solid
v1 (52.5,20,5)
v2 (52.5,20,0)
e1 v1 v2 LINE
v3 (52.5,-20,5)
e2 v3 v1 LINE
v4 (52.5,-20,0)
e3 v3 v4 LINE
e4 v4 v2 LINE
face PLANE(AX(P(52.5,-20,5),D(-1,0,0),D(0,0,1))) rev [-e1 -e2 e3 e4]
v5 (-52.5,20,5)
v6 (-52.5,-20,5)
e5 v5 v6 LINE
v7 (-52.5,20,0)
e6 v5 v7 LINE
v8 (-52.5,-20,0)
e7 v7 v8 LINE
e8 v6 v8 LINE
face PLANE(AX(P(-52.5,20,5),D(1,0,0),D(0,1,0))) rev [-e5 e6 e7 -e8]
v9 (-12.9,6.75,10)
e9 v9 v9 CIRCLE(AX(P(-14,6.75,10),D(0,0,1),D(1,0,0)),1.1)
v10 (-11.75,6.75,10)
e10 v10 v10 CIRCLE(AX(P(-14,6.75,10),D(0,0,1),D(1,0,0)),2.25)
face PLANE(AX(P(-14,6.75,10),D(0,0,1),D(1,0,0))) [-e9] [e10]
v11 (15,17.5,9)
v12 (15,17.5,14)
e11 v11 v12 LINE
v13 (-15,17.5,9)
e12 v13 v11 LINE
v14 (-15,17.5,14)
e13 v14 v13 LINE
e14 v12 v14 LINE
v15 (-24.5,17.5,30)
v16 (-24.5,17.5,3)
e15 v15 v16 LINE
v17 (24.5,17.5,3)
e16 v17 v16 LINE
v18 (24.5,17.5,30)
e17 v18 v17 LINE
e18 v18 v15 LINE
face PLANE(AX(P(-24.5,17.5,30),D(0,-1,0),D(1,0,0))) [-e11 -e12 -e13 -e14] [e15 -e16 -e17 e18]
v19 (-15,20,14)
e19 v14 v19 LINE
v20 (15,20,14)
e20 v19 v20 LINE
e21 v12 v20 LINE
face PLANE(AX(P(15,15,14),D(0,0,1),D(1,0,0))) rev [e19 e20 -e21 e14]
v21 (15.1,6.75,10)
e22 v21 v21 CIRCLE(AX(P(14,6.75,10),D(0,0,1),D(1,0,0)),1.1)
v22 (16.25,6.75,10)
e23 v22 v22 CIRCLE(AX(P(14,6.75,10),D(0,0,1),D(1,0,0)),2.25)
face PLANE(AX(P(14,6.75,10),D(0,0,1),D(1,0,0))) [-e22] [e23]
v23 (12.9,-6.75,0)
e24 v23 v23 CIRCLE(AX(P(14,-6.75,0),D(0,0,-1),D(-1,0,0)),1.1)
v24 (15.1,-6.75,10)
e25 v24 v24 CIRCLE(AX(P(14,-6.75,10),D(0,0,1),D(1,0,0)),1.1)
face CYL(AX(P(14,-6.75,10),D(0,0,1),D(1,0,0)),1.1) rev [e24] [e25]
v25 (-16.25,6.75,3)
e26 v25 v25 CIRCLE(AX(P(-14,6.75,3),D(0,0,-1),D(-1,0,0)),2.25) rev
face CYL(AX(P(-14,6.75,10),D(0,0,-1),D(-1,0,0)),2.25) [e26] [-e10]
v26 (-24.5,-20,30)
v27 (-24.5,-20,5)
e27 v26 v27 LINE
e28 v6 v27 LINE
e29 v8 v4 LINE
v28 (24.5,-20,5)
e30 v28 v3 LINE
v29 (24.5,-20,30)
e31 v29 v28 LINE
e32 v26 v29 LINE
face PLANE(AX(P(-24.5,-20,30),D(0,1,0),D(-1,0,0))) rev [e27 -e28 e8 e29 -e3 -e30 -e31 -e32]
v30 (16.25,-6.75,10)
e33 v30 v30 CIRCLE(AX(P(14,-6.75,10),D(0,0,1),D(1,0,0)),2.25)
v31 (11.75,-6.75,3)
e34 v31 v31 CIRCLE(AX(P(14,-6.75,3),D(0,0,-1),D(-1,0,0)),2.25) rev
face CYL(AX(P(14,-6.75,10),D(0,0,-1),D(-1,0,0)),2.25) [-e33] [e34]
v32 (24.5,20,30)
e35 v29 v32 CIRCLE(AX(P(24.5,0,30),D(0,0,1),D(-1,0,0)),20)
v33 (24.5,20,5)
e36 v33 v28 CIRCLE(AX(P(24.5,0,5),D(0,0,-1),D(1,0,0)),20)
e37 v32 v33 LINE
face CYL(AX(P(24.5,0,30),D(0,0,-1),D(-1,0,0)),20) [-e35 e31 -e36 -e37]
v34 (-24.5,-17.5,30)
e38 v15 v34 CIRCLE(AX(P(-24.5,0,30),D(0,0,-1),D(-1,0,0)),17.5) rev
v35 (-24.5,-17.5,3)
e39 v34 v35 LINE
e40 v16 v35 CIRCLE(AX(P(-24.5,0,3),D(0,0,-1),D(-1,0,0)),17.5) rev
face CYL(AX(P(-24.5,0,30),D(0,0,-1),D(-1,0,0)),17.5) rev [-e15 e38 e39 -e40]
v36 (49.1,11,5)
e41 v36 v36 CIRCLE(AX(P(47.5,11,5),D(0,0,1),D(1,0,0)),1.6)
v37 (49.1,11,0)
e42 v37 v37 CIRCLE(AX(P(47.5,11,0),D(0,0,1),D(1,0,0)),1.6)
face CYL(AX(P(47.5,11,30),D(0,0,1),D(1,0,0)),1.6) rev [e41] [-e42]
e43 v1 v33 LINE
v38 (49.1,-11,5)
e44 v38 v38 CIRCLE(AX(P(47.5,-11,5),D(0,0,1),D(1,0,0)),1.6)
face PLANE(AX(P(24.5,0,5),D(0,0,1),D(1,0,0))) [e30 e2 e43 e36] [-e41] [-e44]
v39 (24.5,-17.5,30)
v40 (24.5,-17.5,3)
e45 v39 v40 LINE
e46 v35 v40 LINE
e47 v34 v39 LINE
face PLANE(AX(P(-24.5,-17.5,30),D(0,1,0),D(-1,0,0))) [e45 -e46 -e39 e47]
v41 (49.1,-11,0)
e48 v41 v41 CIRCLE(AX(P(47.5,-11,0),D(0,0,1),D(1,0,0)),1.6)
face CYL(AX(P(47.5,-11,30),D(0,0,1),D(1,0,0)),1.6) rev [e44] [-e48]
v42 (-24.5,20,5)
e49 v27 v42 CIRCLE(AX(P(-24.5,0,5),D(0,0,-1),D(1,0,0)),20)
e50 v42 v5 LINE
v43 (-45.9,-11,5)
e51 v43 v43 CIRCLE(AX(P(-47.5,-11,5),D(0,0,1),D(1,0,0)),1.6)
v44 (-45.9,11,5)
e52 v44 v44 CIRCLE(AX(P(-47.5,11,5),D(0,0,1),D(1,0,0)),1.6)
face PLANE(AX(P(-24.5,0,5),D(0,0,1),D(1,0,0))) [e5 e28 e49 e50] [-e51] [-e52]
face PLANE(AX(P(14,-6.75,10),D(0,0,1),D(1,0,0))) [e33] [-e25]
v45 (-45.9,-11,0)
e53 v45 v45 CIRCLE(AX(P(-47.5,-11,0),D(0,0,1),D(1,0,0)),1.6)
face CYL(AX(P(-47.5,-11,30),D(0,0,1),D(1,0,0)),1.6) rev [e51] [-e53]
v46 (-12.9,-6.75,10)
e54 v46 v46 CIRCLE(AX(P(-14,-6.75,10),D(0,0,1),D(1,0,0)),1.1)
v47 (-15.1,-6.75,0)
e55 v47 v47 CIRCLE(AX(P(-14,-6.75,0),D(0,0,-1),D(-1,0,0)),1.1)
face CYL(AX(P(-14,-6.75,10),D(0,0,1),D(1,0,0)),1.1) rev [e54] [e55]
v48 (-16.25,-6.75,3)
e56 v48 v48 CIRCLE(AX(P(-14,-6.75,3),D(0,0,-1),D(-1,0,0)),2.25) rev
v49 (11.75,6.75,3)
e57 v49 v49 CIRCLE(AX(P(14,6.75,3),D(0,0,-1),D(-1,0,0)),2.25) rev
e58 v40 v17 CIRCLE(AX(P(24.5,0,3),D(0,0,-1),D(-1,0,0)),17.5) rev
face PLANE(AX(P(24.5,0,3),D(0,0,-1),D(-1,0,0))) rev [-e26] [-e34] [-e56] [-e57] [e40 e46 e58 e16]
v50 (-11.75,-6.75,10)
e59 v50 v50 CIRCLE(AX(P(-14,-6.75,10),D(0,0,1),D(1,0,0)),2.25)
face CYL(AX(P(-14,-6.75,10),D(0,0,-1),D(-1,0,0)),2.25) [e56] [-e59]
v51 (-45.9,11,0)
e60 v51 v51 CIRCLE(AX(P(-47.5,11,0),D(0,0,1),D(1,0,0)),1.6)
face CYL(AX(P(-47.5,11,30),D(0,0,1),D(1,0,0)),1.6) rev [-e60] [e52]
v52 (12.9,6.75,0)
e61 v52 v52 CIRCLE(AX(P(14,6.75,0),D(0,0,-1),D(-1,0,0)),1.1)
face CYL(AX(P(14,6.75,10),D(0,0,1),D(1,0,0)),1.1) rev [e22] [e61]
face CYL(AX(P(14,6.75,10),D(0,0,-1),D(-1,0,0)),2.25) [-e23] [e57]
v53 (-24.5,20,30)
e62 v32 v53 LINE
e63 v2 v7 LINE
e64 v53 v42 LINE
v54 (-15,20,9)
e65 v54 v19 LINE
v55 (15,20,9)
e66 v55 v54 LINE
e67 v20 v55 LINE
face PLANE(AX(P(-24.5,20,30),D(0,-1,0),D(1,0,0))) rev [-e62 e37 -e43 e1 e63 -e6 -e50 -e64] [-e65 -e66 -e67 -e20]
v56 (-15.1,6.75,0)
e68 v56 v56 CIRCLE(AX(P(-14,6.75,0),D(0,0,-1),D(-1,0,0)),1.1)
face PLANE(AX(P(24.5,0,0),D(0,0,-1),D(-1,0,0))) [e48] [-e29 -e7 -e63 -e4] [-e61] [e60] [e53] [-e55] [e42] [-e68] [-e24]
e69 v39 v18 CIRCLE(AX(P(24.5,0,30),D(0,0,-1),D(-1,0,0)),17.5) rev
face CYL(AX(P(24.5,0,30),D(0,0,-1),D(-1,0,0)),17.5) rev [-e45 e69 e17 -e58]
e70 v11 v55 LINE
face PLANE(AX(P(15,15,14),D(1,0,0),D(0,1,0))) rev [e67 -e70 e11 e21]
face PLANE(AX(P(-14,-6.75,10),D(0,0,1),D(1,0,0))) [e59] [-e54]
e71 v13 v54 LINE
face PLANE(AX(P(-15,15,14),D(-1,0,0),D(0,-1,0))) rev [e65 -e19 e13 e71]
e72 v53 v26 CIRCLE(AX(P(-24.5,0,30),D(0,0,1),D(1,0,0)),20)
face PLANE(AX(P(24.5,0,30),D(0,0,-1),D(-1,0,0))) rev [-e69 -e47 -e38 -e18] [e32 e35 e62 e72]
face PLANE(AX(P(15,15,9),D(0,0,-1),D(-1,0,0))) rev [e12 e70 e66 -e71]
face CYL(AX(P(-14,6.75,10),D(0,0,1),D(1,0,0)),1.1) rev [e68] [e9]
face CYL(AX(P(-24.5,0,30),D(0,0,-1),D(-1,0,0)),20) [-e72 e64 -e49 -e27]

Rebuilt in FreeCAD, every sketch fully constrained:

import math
import FreeCAD as App
import Part
import Sketcher

V = App.Vector


def faces_at(feature, points):
    """Names of the faces that lie closest to the given points."""
    faces = feature.Shape.Faces
    near = lambda p: min(range(len(faces)), key=lambda i: faces[i].distToShape(Part.Vertex(*p))[0])
    return sorted({f"Face{near(p) + 1}" for p in points})

doc = App.newDocument("Part")
body = doc.addObject("PartDesign::Body", "Body")

# Sketch on XY plane
sketch1 = doc.addObject("Sketcher::SketchObject", "Sketch")
body.addObject(sketch1)
sketch1.AttachmentSupport = (doc.XY_Plane, [""])
sketch1.MapMode = "FlatFace"
sketch1.addGeometry(Part.LineSegment(V(24, 20, 0), V(-24, 20, 0)), False)
sketch1.addGeometry(Part.ArcOfCircle(Part.Circle(V(-24, 0, 0), V(0, 0, 1), 20), math.radians(90), math.radians(270)), False)
sketch1.addGeometry(Part.LineSegment(V(-24, -20, 0), V(24, -20, 0)), False)
sketch1.addGeometry(Part.ArcOfCircle(Part.Circle(V(24, 0, 0), V(0, 0, 1), 20), math.radians(-90), math.radians(90)), False)
sketch1.addConstraint(Sketcher.Constraint("Tangent", 0, 2, 1, 1))
sketch1.addConstraint(Sketcher.Constraint("Tangent", 1, 2, 2, 1))
sketch1.addConstraint(Sketcher.Constraint("Tangent", 2, 2, 3, 1))
sketch1.addConstraint(Sketcher.Constraint("Tangent", 3, 2, 0, 1))
sketch1.addConstraint(Sketcher.Constraint("Horizontal", 0))
sketch1.addConstraint(Sketcher.Constraint("Horizontal", 2))
sketch1.addConstraint(Sketcher.Constraint("Symmetric", 1, 3, 3, 3, -1, 1))
sketch1.addConstraint(Sketcher.Constraint("Radius", 1, 20.0))
sketch1.addConstraint(Sketcher.Constraint("DistanceX", 0, 2, 0, 1, 49.0))
pad1 = doc.addObject("PartDesign::Pad", "Pad")
body.addObject(pad1)
pad1.Profile = sketch1
pad1.Length = 30
doc.recompute()

thickness = doc.addObject("PartDesign::Thickness", "Thickness")
body.addObject(thickness)
thickness.Base = (pad1, faces_at(pad1, [(0, 0, 30)]))
thickness.Value = 2.5
thickness.Reversed = True
thickness.Join = "Intersection"

# Sketch on XY plane
sketch2 = doc.addObject("Sketcher::SketchObject", "Sketch001")
body.addObject(sketch2)
sketch2.AttachmentSupport = (doc.XY_Plane, [""])
sketch2.MapMode = "FlatFace"
sketch2.AttachmentOffset = App.Placement(V(0, 0, 2.5), App.Rotation())
sketch2.addGeometry(Part.LineSegment(V(-24, 18, 0), V(24, 18, 0)), False)
sketch2.addGeometry(Part.ArcOfCircle(Part.Circle(V(24, 0, 0), V(0, 0, 1), 18), math.radians(-90), math.radians(90)), False)
sketch2.addGeometry(Part.LineSegment(V(24, -18, 0), V(-24, -18, 0)), False)
sketch2.addGeometry(Part.ArcOfCircle(Part.Circle(V(-24, 0, 0), V(0, 0, 1), 18), math.radians(90), math.radians(270)), False)
sketch2.addConstraint(Sketcher.Constraint("Tangent", 0, 2, 1, 2))
sketch2.addConstraint(Sketcher.Constraint("Tangent", 1, 1, 2, 1))
sketch2.addConstraint(Sketcher.Constraint("Tangent", 2, 2, 3, 2))
sketch2.addConstraint(Sketcher.Constraint("Tangent", 3, 1, 0, 1))
sketch2.addConstraint(Sketcher.Constraint("Horizontal", 0))
sketch2.addConstraint(Sketcher.Constraint("Horizontal", 2))
sketch2.addConstraint(Sketcher.Constraint("Symmetric", 1, 3, 3, 3, -1, 1))
sketch2.addConstraint(Sketcher.Constraint("Radius", 1, 17.5))
sketch2.addConstraint(Sketcher.Constraint("DistanceX", 0, 1, 0, 2, 49.0))
pad2 = doc.addObject("PartDesign::Pad", "Pad001")
body.addObject(pad2)
pad2.Profile = sketch2
pad2.Length = 0.5

# Sketch on XY plane
sketch3 = doc.addObject("Sketcher::SketchObject", "Sketch002")
body.addObject(sketch3)
sketch3.AttachmentSupport = (doc.XY_Plane, [""])
sketch3.MapMode = "FlatFace"
sketch3.addGeometry(Part.LineSegment(V(-24, 20, 0), V(-52, 20, 0)), False)
sketch3.addGeometry(Part.LineSegment(V(-52, 20, 0), V(-52, -20, 0)), False)
sketch3.addGeometry(Part.LineSegment(V(-52, -20, 0), V(-24, -20, 0)), False)
sketch3.addGeometry(Part.ArcOfCircle(Part.Circle(V(-24, 0, 0), V(0, 0, 1), 20), math.radians(90), math.radians(270)), False)
sketch3.addGeometry(Part.LineSegment(V(24, -20, 0), V(52, -20, 0)), False)
sketch3.addGeometry(Part.LineSegment(V(52, -20, 0), V(52, 20, 0)), False)
sketch3.addGeometry(Part.LineSegment(V(52, 20, 0), V(24, 20, 0)), False)
sketch3.addGeometry(Part.ArcOfCircle(Part.Circle(V(24, 0, 0), V(0, 0, 1), 20), math.radians(-90), math.radians(90)), False)
sketch3.addConstraint(Sketcher.Constraint("Coincident", 0, 2, 1, 1))
sketch3.addConstraint(Sketcher.Constraint("Coincident", 1, 2, 2, 1))
sketch3.addConstraint(Sketcher.Constraint("Tangent", 2, 2, 3, 2))
sketch3.addConstraint(Sketcher.Constraint("Tangent", 3, 1, 0, 1))
sketch3.addConstraint(Sketcher.Constraint("Coincident", 4, 2, 5, 1))
sketch3.addConstraint(Sketcher.Constraint("Coincident", 5, 2, 6, 1))
sketch3.addConstraint(Sketcher.Constraint("Tangent", 6, 2, 7, 2))
sketch3.addConstraint(Sketcher.Constraint("Tangent", 7, 1, 4, 1))
sketch3.addConstraint(Sketcher.Constraint("Horizontal", 0))
sketch3.addConstraint(Sketcher.Constraint("Vertical", 1))
sketch3.addConstraint(Sketcher.Constraint("Horizontal", 2))
sketch3.addConstraint(Sketcher.Constraint("Horizontal", 4))
sketch3.addConstraint(Sketcher.Constraint("Vertical", 5))
sketch3.addConstraint(Sketcher.Constraint("Horizontal", 6))
sketch3.addConstraint(Sketcher.Constraint("Equal", 3, 7))
sketch3.addConstraint(Sketcher.Constraint("Symmetric", 3, 3, 7, 3, -1, 1))
sketch3.addConstraint(Sketcher.Constraint("Symmetric", 1, 2, 4, 2, -2))
sketch3.addConstraint(Sketcher.Constraint("Radius", 3, 20.0))
sketch3.addConstraint(Sketcher.Constraint("DistanceX", 0, 2, 0, 1, 28.0))
sketch3.addConstraint(Sketcher.Constraint("DistanceX", 3, 3, 7, 3, 49.0))
pad3 = doc.addObject("PartDesign::Pad", "Pad002")
body.addObject(pad3)
pad3.Profile = sketch3
pad3.Length = 5

# Sketch on XY plane
sketch4 = doc.addObject("Sketcher::SketchObject", "Sketch003")
body.addObject(sketch4)
sketch4.AttachmentSupport = (doc.XY_Plane, [""])
sketch4.MapMode = "FlatFace"
sketch4.AttachmentOffset = App.Placement(V(0, 0, 30), App.Rotation())
sketch4.addGeometry(Part.Circle(V(-47.5, 11, 0), V(0, 0, 1), 1.6), False)
sketch4.addGeometry(Part.Circle(V(-47.5, -11, 0), V(0, 0, 1), 1.6), False)
sketch4.addGeometry(Part.Circle(V(47.5, -11, 0), V(0, 0, 1), 1.6), False)
sketch4.addGeometry(Part.Circle(V(47.5, 11, 0), V(0, 0, 1), 1.6), False)
sketch4.addConstraint(Sketcher.Constraint("Equal", 0, 1))
sketch4.addConstraint(Sketcher.Constraint("Equal", 1, 2))
sketch4.addConstraint(Sketcher.Constraint("Equal", 2, 3))
sketch4.addConstraint(Sketcher.Constraint("Symmetric", 0, 3, 2, 3, -1, 1))
sketch4.addConstraint(Sketcher.Constraint("Symmetric", 1, 3, 3, 3, -1, 1))
sketch4.addConstraint(Sketcher.Constraint("Symmetric", 1, 3, 2, 3, -2))
sketch4.addConstraint(Sketcher.Constraint("Diameter", 0, 3.2))
sketch4.addConstraint(Sketcher.Constraint("DistanceY", -1, 1, 0, 3, 11.0))
sketch4.addConstraint(Sketcher.Constraint("DistanceX", 1, 3, 2, 3, 95.0))
doc.recompute()
hole = doc.addObject("PartDesign::Hole", "Hole")
body.addObject(hole)
hole.Profile = sketch4
hole.ThreadType = "None"
hole.Diameter = 3.2
hole.DepthType = "ThroughAll"

# Sketch on XY plane
sketch5 = doc.addObject("Sketcher::SketchObject", "Sketch004")
body.addObject(sketch5)
sketch5.AttachmentSupport = (doc.XY_Plane, [""])
sketch5.MapMode = "FlatFace"
sketch5.AttachmentOffset = App.Placement(V(0, 0, 3), App.Rotation())
sketch5.addGeometry(Part.Circle(V(-14, 6.8, 0), V(0, 0, 1), 2.2), False)
sketch5.addGeometry(Part.Circle(V(14, 6.8, 0), V(0, 0, 1), 2.2), False)
sketch5.addGeometry(Part.Circle(V(-14, -6.8, 0), V(0, 0, 1), 2.2), False)
sketch5.addGeometry(Part.Circle(V(14, -6.8, 0), V(0, 0, 1), 2.2), False)
sketch5.addConstraint(Sketcher.Constraint("Equal", 0, 1))
sketch5.addConstraint(Sketcher.Constraint("Equal", 1, 2))
sketch5.addConstraint(Sketcher.Constraint("Equal", 2, 3))
sketch5.addConstraint(Sketcher.Constraint("Symmetric", 1, 3, 2, 3, -1, 1))
sketch5.addConstraint(Sketcher.Constraint("Symmetric", 0, 3, 3, 3, -1, 1))
sketch5.addConstraint(Sketcher.Constraint("Symmetric", 0, 3, 1, 3, -2))
sketch5.addConstraint(Sketcher.Constraint("Diameter", 0, 4.5))
sketch5.addConstraint(Sketcher.Constraint("DistanceX", 0, 3, -1, 1, 14.0))
sketch5.addConstraint(Sketcher.Constraint("DistanceY", 2, 3, 0, 3, 13.5))
pad4 = doc.addObject("PartDesign::Pad", "Pad003")
body.addObject(pad4)
pad4.Profile = sketch5
pad4.Length = 7

# Sketch on XY plane
sketch6 = doc.addObject("Sketcher::SketchObject", "Sketch005")
body.addObject(sketch6)
sketch6.AttachmentSupport = (doc.XY_Plane, [""])
sketch6.MapMode = "FlatFace"
sketch6.AttachmentOffset = App.Placement(V(0, 0, 10), App.Rotation())
sketch6.addGeometry(Part.Circle(V(-14, 6.8, 0), V(0, 0, 1), 1.1), False)
sketch6.addGeometry(Part.Circle(V(14, 6.8, 0), V(0, 0, 1), 1.1), False)
sketch6.addGeometry(Part.Circle(V(14, -6.8, 0), V(0, 0, 1), 1.1), False)
sketch6.addGeometry(Part.Circle(V(-14, -6.8, 0), V(0, 0, 1), 1.1), False)
sketch6.addConstraint(Sketcher.Constraint("Equal", 0, 1))
sketch6.addConstraint(Sketcher.Constraint("Equal", 1, 2))
sketch6.addConstraint(Sketcher.Constraint("Equal", 2, 3))
sketch6.addConstraint(Sketcher.Constraint("Symmetric", 0, 3, 2, 3, -1, 1))
sketch6.addConstraint(Sketcher.Constraint("Symmetric", 1, 3, 3, 3, -1, 1))
sketch6.addConstraint(Sketcher.Constraint("Symmetric", 0, 3, 1, 3, -2))
sketch6.addConstraint(Sketcher.Constraint("Diameter", 0, 2.2))
sketch6.addConstraint(Sketcher.Constraint("DistanceX", 0, 3, -1, 1, 14.0))
sketch6.addConstraint(Sketcher.Constraint("DistanceY", 2, 3, 1, 3, 13.5))
doc.recompute()
hole2 = doc.addObject("PartDesign::Hole", "Hole001")
body.addObject(hole2)
hole2.Profile = sketch6
hole2.ThreadType = "None"
hole2.Diameter = 2.2
hole2.DepthType = "Dimension"
hole2.Depth = 11.5
hole2.DrillPoint = "Angled"
hole2.DrillPointAngle = 118

# Sketch on XZ plane
sketch7 = doc.addObject("Sketcher::SketchObject", "Sketch006")
body.addObject(sketch7)
sketch7.AttachmentSupport = (doc.XZ_Plane, [""])
sketch7.MapMode = "FlatFace"
sketch7.AttachmentOffset = App.Placement(V(0, 0, -20), App.Rotation())
sketch7.addGeometry(Part.LineSegment(V(-15, 9, 0), V(-15, 14, 0)), False)
sketch7.addGeometry(Part.LineSegment(V(-15, 14, 0), V(15, 14, 0)), False)
sketch7.addGeometry(Part.LineSegment(V(15, 14, 0), V(15, 9, 0)), False)
sketch7.addGeometry(Part.LineSegment(V(15, 9, 0), V(-15, 9, 0)), False)
sketch7.addConstraint(Sketcher.Constraint("Coincident", 0, 2, 1, 1))
sketch7.addConstraint(Sketcher.Constraint("Coincident", 1, 2, 2, 1))
sketch7.addConstraint(Sketcher.Constraint("Coincident", 2, 2, 3, 1))
sketch7.addConstraint(Sketcher.Constraint("Coincident", 3, 2, 0, 1))
sketch7.addConstraint(Sketcher.Constraint("Vertical", 0))
sketch7.addConstraint(Sketcher.Constraint("Horizontal", 1))
sketch7.addConstraint(Sketcher.Constraint("Vertical", 2))
sketch7.addConstraint(Sketcher.Constraint("Horizontal", 3))
sketch7.addConstraint(Sketcher.Constraint("DistanceX", 1, 1, 1, 2, 30.0))
sketch7.addConstraint(Sketcher.Constraint("DistanceY", 0, 1, 0, 2, 5.0))
sketch7.addConstraint(Sketcher.Constraint("DistanceX", 0, 2, -1, 1, 15.0))
sketch7.addConstraint(Sketcher.Constraint("DistanceY", -1, 1, 0, 2, 14.0))
pocket1 = doc.addObject("PartDesign::Pocket", "Pocket")
body.addObject(pocket1)
pocket1.Profile = sketch7
pocket1.Length = 5
pocket1.Reversed = True

doc.recompute()
